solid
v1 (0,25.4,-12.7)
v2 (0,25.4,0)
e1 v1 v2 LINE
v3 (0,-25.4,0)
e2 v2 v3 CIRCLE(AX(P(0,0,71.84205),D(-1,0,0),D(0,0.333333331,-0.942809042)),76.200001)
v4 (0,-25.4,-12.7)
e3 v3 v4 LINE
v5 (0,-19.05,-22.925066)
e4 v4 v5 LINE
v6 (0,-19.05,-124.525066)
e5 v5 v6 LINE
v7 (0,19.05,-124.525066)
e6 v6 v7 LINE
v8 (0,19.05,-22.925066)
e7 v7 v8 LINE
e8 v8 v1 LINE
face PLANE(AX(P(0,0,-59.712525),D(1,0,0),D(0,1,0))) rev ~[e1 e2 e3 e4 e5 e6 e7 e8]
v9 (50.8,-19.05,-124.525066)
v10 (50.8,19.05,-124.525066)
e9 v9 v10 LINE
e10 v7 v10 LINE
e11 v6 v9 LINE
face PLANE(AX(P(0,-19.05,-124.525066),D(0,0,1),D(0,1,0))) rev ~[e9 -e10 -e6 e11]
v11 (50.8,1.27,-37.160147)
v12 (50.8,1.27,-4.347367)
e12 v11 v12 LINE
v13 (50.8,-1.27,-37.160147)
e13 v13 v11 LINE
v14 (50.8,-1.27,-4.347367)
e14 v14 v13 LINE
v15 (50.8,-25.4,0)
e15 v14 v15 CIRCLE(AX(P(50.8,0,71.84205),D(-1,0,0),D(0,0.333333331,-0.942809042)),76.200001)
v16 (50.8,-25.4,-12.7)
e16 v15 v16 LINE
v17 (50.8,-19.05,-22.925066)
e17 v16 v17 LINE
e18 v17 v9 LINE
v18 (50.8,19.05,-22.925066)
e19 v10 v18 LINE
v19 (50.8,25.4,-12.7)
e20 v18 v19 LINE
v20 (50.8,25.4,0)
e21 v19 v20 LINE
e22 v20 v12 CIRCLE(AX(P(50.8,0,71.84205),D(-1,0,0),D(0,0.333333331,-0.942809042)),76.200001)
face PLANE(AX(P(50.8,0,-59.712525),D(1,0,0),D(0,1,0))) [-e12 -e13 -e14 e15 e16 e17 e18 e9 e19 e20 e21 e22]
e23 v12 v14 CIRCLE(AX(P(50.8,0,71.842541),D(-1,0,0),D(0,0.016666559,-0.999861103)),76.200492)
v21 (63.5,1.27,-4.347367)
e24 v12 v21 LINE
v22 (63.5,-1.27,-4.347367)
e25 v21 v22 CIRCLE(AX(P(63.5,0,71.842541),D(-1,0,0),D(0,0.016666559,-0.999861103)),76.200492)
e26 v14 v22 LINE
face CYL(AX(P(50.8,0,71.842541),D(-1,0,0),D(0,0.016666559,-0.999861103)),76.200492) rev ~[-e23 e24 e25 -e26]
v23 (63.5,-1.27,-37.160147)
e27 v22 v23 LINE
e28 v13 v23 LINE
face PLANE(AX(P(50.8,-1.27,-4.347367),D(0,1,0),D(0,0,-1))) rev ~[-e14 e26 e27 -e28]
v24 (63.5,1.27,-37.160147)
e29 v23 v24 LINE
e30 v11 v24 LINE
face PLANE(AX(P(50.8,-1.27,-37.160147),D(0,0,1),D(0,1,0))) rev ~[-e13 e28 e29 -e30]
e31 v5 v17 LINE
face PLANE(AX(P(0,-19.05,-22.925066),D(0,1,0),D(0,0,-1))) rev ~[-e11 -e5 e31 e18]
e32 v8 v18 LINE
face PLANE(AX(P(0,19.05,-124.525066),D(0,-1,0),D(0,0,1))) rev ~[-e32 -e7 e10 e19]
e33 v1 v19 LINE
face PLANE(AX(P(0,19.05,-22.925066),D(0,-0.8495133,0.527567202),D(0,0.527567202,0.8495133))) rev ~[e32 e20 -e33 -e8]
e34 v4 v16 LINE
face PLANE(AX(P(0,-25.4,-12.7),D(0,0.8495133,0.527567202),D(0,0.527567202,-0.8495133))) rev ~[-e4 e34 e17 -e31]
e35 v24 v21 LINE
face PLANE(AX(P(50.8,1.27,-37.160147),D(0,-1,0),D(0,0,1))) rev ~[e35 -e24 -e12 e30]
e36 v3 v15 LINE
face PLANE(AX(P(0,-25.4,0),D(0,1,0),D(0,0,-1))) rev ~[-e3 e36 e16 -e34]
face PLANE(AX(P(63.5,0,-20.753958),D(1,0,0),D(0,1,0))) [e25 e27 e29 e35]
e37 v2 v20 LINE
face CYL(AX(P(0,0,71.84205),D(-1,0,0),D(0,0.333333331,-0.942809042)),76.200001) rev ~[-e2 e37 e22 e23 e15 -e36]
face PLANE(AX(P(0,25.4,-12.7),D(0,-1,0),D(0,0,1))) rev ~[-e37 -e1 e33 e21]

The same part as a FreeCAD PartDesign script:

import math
import FreeCAD as App
import Part
import Sketcher
from FreeCAD import Vector
Q = App.Units.Quantity

doc = App.newDocument("Part")
body = doc.addObject("PartDesign::Body", "Body")

sketch1 = body.newObject("Sketcher::SketchObject", "Sketch")
sketch1.AttachmentSupport = (doc.getObject("YZ_Plane"), [""])
sketch1.MapMode = "FlatFace"
sketch1.addGeometry([
    Part.ArcOfCircle(Part.Circle(Vector(0, 71.84205, 0), Vector(0, 0, 1), 76.200001), math.radians(-109.47122), math.radians(-70.52878)),
    Part.LineSegment(Vector(-25.4, 0, 0), Vector(-25.4, -12.7, 0)),
    Part.LineSegment(Vector(-25.4, -12.7, 0), Vector(-19.05, -22.925066, 0)),
    Part.LineSegment(Vector(-19.05, -22.925066, 0), Vector(-19.05, -124.525066, 0)),
    Part.LineSegment(Vector(-19.05, -124.525066, 0), Vector(19.05, -124.525066, 0)),
    Part.LineSegment(Vector(19.05, -124.525066, 0), Vector(19.05, -22.925066, 0)),
    Part.LineSegment(Vector(19.05, -22.925066, 0), Vector(25.4, -12.7, 0)),
    Part.LineSegment(Vector(25.4, -12.7, 0), Vector(25.4, 0, 0)),
], False)
sketch1.addConstraint([
    Sketcher.Constraint("Coincident", 0, 1, 1, 1),
    Sketcher.Constraint("Coincident", 1, 2, 2, 1),
    Sketcher.Constraint("Coincident", 2, 2, 3, 1),
    Sketcher.Constraint("Coincident", 3, 2, 4, 1),
    Sketcher.Constraint("Coincident", 4, 2, 5, 1),
    Sketcher.Constraint("Coincident", 5, 2, 6, 1),
    Sketcher.Constraint("Coincident", 6, 2, 7, 1),
    Sketcher.Constraint("Coincident", 7, 2, 0, 2),
    Sketcher.Constraint("Vertical", 1),
    Sketcher.Constraint("Vertical", 3),
    Sketcher.Constraint("Horizontal", 4),
    Sketcher.Constraint("Vertical", 5),
    Sketcher.Constraint("Vertical", 7),
    Sketcher.Constraint("Symmetric", 0, 1, 7, 2, -1, 1),
    Sketcher.Constraint("Symmetric", 2, 2, 5, 2, -2),
    Sketcher.Constraint("PointOnObject", 0, 3, -2),
    Sketcher.Constraint("Horizontal", 1, 2, 6, 2),
    Sketcher.Constraint("Radius", 0, Q("3 in")),
    Sketcher.Constraint("DistanceY", 3, 2, 3, 1, Q("4 in")),
    Sketcher.Constraint("DistanceX", 4, 1, 4, 2, Q("1.5 in")),
    Sketcher.Constraint("DistanceY", 1, 2, 1, 1, Q("0.5 in")),
    Sketcher.Constraint("DistanceX", 0, 1, -1, 1, Q("1 in")),
    Sketcher.Constraint("Distance", 2, Q("12.036381 mm")),
])
pad1 = body.newObject("PartDesign::Pad", "Pad")
pad1.Profile = sketch1
pad1.Length = Q("2 in")

sketch2 = body.newObject("Sketcher::SketchObject", "Sketch001")
sketch2.AttachmentSupport = (doc.getObject("YZ_Plane"), [""])
sketch2.MapMode = "FlatFace"
sketch2.AttachmentOffset = App.Placement(Vector(0, 0, 2 * 25.4), App.Rotation())
sketch2.addGeometry([
    Part.ArcOfCircle(Part.Circle(Vector(0, 71.842541, 0), Vector(0, 0, 1), 76.200492), math.radians(-90.954968), math.radians(-89.045032)),
    Part.LineSegment(Vector(-1.27, -4.347367, 0), Vector(-1.27, -37.160147, 0)),
    Part.LineSegment(Vector(-1.27, -37.160147, 0), Vector(1.27, -37.160147, 0)),
    Part.LineSegment(Vector(1.27, -37.160147, 0), Vector(1.27, -4.347367, 0)),
], False)
sketch2.addConstraint([
    Sketcher.Constraint("Coincident", 0, 1, 1, 1),
    Sketcher.Constraint("Coincident", 1, 2, 2, 1),
    Sketcher.Constraint("Coincident", 2, 2, 3, 1),
    Sketcher.Constraint("Coincident", 3, 2, 0, 2),
    Sketcher.Constraint("Vertical", 1),
    Sketcher.Constraint("Horizontal", 2),
    Sketcher.Constraint("Vertical", 3),
    Sketcher.Constraint("Symmetric", 0, 1, 3, 2, -2),
    Sketcher.Constraint("DistanceX", 2, 1, 2, 2, Q("0.1 in")),
    Sketcher.Constraint("Radius", 0, Q("76.200492 mm")),
    Sketcher.Constraint("DistanceY", 1, 2, 1, 1, Q("32.81278 mm")),
    Sketcher.Constraint("DistanceY", -1, 1, 0, 3, Q("71.842541 mm")),
])
pad2 = body.newObject("PartDesign::Pad", "Pad001")
pad2.Profile = sketch2
pad2.Length = Q("0.5 in")

doc.recompute()
